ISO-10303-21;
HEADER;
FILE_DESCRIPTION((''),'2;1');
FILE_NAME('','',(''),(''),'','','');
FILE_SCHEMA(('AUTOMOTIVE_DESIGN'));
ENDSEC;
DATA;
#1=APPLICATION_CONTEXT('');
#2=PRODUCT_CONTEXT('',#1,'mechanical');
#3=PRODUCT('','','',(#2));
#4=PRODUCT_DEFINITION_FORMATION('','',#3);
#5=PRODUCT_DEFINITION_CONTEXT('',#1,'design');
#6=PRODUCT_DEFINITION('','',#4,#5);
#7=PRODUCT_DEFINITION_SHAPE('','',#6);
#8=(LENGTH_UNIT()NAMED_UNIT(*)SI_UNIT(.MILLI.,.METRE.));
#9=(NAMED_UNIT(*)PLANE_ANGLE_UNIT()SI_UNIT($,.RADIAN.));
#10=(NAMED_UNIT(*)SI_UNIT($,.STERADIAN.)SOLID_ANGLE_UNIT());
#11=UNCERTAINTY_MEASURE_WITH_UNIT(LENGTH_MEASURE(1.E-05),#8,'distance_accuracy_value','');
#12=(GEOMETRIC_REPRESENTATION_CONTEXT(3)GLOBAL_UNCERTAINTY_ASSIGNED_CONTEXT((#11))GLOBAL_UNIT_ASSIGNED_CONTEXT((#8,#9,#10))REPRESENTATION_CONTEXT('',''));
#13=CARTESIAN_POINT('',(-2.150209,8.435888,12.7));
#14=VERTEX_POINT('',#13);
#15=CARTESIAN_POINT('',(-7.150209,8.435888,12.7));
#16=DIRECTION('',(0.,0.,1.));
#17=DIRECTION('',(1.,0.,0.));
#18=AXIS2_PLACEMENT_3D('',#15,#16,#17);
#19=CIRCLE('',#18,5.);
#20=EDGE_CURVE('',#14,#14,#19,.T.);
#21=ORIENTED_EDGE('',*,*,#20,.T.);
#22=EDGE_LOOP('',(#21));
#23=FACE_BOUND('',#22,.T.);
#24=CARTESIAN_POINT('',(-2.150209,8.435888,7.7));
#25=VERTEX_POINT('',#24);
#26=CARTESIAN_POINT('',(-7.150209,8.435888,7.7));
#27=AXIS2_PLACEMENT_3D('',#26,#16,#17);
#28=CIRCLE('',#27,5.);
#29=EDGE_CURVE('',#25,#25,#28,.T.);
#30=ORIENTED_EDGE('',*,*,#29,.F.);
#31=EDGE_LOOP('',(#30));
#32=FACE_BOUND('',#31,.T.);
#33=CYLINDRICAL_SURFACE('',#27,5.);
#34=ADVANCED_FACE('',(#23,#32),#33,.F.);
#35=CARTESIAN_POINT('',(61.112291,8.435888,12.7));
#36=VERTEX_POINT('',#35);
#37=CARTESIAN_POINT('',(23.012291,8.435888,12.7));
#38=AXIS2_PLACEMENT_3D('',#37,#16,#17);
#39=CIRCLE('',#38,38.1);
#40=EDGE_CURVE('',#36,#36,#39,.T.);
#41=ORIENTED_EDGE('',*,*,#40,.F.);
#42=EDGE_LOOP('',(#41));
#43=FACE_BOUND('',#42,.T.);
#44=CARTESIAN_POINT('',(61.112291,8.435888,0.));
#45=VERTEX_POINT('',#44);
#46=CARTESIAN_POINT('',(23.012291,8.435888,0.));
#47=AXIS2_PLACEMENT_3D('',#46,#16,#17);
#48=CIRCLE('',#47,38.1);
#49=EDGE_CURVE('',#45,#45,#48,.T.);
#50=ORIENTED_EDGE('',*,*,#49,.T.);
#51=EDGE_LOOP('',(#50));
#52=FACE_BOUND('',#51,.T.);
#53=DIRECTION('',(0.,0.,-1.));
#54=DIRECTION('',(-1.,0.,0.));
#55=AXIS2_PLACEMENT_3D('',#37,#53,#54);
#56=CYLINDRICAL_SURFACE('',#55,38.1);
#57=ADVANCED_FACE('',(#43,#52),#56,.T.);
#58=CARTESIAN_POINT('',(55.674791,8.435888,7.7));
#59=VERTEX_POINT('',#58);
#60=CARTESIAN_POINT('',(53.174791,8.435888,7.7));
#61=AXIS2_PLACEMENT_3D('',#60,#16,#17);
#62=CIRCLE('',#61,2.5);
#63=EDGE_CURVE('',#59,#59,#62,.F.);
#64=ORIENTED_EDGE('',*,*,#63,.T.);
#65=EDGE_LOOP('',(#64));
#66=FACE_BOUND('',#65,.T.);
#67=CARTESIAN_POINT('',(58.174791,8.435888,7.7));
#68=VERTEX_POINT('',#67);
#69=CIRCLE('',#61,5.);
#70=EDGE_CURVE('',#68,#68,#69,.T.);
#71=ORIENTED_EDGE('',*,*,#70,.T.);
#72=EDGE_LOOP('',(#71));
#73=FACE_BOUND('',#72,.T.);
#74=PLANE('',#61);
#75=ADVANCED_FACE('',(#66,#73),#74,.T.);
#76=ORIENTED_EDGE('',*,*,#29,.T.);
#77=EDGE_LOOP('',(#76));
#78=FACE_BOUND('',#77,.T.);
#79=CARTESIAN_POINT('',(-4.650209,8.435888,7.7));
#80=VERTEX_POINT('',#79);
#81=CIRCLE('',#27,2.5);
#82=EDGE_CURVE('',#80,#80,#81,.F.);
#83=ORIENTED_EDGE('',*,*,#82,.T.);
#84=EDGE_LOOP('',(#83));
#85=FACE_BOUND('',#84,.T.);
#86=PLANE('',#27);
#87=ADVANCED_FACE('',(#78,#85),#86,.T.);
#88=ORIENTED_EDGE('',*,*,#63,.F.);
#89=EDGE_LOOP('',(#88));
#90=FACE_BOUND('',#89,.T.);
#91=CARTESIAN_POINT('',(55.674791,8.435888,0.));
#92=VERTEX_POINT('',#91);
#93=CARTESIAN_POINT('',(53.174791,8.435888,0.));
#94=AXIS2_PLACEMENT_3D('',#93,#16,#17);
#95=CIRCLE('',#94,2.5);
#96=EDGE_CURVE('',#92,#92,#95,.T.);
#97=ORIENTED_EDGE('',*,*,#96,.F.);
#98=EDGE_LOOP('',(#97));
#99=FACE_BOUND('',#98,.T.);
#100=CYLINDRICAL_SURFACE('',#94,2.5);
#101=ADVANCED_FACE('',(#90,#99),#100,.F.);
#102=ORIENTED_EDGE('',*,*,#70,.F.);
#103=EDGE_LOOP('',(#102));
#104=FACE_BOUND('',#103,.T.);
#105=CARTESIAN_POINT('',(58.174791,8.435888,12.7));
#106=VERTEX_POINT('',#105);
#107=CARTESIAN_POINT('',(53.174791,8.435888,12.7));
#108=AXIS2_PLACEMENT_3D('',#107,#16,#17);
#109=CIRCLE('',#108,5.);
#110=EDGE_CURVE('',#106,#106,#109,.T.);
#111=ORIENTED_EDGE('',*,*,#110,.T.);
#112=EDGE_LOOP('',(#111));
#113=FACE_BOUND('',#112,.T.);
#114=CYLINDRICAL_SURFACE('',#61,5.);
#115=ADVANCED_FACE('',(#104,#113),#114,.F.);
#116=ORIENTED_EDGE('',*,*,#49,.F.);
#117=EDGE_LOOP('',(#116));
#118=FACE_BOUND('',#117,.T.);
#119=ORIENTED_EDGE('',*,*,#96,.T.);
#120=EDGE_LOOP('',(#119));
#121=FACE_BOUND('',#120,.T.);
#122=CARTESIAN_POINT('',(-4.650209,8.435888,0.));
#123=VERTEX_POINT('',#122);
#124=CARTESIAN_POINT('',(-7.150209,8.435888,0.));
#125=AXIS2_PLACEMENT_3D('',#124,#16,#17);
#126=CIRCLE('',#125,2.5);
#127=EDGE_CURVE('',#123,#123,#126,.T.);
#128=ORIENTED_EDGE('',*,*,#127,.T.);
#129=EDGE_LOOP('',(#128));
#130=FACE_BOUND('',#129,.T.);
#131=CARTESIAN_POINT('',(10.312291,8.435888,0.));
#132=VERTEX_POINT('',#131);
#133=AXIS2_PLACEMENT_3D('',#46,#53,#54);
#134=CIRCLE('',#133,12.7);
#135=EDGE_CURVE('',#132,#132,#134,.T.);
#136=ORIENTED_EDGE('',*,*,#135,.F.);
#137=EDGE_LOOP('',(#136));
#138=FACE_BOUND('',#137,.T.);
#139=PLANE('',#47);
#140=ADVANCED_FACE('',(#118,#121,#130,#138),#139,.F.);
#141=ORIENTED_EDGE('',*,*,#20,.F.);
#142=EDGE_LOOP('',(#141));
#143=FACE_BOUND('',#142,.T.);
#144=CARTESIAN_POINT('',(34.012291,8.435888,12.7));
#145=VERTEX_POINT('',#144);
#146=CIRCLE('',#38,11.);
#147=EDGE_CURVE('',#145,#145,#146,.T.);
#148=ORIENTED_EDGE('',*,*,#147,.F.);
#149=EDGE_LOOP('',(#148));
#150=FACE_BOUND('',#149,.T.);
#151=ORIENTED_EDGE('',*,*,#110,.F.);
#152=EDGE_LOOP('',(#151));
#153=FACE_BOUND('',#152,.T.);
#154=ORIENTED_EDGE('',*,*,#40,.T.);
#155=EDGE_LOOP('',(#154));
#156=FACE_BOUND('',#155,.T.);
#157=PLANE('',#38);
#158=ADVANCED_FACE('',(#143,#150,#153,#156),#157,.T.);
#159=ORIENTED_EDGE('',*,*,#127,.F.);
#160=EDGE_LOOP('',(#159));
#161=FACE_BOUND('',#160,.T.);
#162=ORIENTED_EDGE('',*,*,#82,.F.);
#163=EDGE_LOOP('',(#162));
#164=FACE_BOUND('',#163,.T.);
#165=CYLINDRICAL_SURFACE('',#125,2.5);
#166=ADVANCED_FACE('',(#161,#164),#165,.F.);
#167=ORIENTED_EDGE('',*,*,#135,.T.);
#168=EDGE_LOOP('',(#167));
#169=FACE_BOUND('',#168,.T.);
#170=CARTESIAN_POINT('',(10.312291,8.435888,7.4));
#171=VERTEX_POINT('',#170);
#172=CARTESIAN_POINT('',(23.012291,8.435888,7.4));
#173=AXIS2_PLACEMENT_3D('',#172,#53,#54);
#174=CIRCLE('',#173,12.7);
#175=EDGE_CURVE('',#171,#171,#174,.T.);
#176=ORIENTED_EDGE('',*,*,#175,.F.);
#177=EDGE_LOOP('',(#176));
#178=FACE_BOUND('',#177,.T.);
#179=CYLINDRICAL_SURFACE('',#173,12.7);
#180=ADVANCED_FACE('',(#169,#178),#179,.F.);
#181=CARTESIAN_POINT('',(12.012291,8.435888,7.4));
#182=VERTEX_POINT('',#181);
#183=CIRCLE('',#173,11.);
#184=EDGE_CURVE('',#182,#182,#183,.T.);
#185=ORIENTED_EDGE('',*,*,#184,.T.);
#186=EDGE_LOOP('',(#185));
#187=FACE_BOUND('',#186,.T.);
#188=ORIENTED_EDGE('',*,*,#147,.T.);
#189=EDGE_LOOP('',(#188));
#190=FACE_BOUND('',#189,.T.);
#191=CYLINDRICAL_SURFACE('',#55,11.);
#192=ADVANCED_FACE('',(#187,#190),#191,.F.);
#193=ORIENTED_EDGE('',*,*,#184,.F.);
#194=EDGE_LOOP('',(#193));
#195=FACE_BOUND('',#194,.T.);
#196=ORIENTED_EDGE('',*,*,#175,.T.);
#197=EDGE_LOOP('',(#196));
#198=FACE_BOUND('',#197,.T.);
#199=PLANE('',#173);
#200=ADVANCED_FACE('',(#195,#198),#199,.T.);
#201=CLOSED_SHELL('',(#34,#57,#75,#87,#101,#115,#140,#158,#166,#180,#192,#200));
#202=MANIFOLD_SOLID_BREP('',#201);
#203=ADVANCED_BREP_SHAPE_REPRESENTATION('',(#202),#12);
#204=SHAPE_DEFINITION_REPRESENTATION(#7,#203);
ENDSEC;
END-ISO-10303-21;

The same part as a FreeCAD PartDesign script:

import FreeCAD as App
import Part
import Sketcher

V = App.Vector

doc = App.newDocument("Part")
body = doc.addObject("PartDesign::Body", "Body")

# Sketch on XY plane
sketch1 = doc.addObject("Sketcher::SketchObject", "Sketch")
body.addObject(sketch1)
sketch1.AttachmentSupport = (doc.XY_Plane, [""])
sketch1.MapMode = "FlatFace"
sketch1.addGeometry(Part.Circle(V(23.012291, 8.435888, 0), V(0, 0, 1), 38.1), False)
sketch1.addGeometry(Part.Circle(V(23.012291, 8.435888, 0), V(0, 0, 1), 11), False)
sketch1.addConstraint(Sketcher.Constraint("Coincident", 1, 3, 0, 3))
sketch1.addConstraint(Sketcher.Constraint("Diameter", 1, 22.0))
sketch1.addConstraint(Sketcher.Constraint("Diameter", 0, 76.2))
sketch1.addConstraint(Sketcher.Constraint("DistanceX", -1, 1, 0, 3, 23.012291))
sketch1.addConstraint(Sketcher.Constraint("DistanceY", -1, 1, 0, 3, 8.435888))
pad1 = doc.addObject("PartDesign::Pad", "Pad")
body.addObject(pad1)
pad1.Profile = sketch1
pad1.Length = 12.7

# Sketch on XY plane
sketch2 = doc.addObject("Sketcher::SketchObject", "Sketch001")
body.addObject(sketch2)
sketch2.AttachmentSupport = (doc.XY_Plane, [""])
sketch2.MapMode = "FlatFace"
sketch2.addGeometry(Part.Circle(V(23.012291, 8.435888, 0), V(0, 0, 1), 12.7), False)
sketch2.addConstraint(Sketcher.Constraint("Diameter", 0, 25.4))
sketch2.addConstraint(Sketcher.Constraint("DistanceX", -1, 1, 0, 3, 23.012291))
sketch2.addConstraint(Sketcher.Constraint("DistanceY", -1, 1, 0, 3, 8.435888))
pocket1 = doc.addObject("PartDesign::Pocket", "Pocket")
body.addObject(pocket1)
pocket1.Profile = sketch2
pocket1.Length = 7.4
pocket1.Reversed = True

# Sketch on XY plane
sketch3 = doc.addObject("Sketcher::SketchObject", "Sketch002")
body.addObject(sketch3)
sketch3.AttachmentSupport = (doc.XY_Plane, [""])
sketch3.MapMode = "FlatFace"
sketch3.AttachmentOffset = App.Placement(V(0, 0, 12.7), App.Rotation())
sketch3.addGeometry(Part.Circle(V(53.174791, 8.435888, 0), V(0, 0, 1), 2.5), False)
sketch3.addGeometry(Part.Circle(V(-7.150209, 8.435888, 0), V(0, 0, 1), 2.5), False)
sketch3.addConstraint(Sketcher.Constraint("Equal", 0, 1))
sketch3.addConstraint(Sketcher.Constraint("Horizontal", 0, 3, 1, 3))
sketch3.addConstraint(Sketcher.Constraint("Diameter", 0, 5.0))
sketch3.addConstraint(Sketcher.Constraint("DistanceX", 1, 3, 0, 3, 60.325))
sketch3.addConstraint(Sketcher.Constraint("DistanceX", -1, 1, 0, 3, 53.174791))
sketch3.addConstraint(Sketcher.Constraint("DistanceY", -1, 1, 0, 3, 8.435888))
pocket2 = doc.addObject("PartDesign::Pocket", "Pocket001")
body.addObject(pocket2)
pocket2.Profile = sketch3
pocket2.Type = "ThroughAll"

# Sketch on XY plane
sketch4 = doc.addObject("Sketcher::SketchObject", "Sketch003")
body.addObject(sketch4)
sketch4.AttachmentSupport = (doc.XY_Plane, [""])
sketch4.MapMode = "FlatFace"
sketch4.AttachmentOffset = App.Placement(V(0, 0, 12.7), App.Rotation())
sketch4.addGeometry(Part.Circle(V(-7.150209, 8.435888, 0), V(0, 0, 1), 5), False)
sketch4.addGeometry(Part.Circle(V(53.174791, 8.435888, 0), V(0, 0, 1), 5), False)
sketch4.addConstraint(Sketcher.Constraint("Equal", 0, 1))
sketch4.addConstraint(Sketcher.Constraint("Horizontal", 0, 3, 1, 3))
sketch4.addConstraint(Sketcher.Constraint("Diameter", 0, 10.0))
sketch4.addConstraint(Sketcher.Constraint("DistanceX", 0, 3, 1, 3, 60.325))
sketch4.addConstraint(Sketcher.Constraint("DistanceX", 0, 3, -1, 1, 7.150209))
sketch4.addConstraint(Sketcher.Constraint("DistanceY", -1, 1, 0, 3, 8.435888))
pocket3 = doc.addObject("PartDesign::Pocket", "Pocket002")
body.addObject(pocket3)
pocket3.Profile = sketch4
pocket3.Length = 5

doc.recompute()
